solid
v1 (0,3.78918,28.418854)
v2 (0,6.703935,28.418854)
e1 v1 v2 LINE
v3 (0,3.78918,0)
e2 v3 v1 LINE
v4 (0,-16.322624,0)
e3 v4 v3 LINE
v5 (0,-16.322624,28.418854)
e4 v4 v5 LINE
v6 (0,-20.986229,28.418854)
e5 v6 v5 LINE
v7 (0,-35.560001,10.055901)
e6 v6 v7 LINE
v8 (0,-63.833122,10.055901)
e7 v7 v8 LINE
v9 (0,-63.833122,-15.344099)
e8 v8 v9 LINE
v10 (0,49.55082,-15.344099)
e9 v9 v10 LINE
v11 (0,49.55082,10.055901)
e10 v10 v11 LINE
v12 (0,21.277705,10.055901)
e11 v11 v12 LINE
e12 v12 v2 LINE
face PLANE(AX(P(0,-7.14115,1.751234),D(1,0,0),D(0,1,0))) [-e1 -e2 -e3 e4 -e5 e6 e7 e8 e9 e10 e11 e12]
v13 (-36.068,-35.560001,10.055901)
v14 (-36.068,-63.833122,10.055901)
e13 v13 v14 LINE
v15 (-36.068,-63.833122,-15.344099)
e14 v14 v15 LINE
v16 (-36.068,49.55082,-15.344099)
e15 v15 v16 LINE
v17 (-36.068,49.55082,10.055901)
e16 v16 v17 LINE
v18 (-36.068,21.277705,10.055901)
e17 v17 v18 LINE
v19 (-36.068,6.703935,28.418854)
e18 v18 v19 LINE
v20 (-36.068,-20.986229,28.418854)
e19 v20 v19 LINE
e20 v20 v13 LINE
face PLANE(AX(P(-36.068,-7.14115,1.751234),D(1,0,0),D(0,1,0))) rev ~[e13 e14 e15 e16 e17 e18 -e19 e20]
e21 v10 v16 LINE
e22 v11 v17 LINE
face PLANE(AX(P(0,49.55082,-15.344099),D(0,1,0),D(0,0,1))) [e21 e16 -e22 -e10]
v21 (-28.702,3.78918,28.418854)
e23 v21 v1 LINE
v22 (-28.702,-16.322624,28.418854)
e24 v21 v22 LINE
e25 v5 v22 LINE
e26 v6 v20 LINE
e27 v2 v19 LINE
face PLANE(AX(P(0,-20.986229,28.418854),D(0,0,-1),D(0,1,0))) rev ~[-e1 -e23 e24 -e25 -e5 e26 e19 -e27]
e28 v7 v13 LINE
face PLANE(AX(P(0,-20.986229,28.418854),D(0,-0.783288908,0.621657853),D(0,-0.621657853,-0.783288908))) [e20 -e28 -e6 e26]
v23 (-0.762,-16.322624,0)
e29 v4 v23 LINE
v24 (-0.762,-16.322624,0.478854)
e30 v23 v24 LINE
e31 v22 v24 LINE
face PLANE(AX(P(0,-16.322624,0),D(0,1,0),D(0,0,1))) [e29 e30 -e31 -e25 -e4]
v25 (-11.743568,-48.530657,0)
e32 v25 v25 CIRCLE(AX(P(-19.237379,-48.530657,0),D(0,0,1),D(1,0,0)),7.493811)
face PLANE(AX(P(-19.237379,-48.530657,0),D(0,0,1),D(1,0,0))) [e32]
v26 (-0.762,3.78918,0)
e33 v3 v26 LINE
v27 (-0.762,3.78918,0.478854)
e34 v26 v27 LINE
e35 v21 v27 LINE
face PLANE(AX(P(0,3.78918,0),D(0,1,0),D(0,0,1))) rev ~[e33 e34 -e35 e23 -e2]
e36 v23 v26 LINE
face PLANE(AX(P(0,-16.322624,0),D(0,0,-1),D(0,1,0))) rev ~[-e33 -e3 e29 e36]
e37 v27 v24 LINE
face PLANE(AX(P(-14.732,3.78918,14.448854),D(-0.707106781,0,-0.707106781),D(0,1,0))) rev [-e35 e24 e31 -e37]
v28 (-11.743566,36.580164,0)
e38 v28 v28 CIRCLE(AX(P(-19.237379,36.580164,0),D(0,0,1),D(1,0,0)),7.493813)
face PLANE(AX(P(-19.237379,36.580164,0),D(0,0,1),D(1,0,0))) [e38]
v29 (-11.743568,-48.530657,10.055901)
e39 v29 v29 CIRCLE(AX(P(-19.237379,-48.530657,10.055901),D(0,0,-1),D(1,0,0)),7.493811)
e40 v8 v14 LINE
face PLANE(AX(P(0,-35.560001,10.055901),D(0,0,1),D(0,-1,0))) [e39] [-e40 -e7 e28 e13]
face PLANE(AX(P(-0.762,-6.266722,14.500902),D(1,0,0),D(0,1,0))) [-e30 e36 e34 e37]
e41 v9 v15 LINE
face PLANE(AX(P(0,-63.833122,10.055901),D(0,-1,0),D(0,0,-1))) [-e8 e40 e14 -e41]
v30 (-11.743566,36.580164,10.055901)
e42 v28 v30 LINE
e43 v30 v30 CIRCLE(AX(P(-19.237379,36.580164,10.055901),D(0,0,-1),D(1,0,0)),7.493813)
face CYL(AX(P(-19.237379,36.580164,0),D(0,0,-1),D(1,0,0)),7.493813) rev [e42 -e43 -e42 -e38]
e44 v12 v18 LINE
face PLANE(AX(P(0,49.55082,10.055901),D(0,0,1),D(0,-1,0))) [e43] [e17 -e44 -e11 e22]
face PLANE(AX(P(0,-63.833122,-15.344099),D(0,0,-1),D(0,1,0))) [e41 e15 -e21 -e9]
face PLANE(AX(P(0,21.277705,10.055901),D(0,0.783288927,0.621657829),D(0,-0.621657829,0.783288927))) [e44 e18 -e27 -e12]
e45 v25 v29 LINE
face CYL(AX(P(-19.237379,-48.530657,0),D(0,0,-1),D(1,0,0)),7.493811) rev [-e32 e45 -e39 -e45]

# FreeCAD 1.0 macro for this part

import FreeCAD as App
import Part
import Sketcher
Q = App.Units.Quantity


def edges_at(feature, points):
    """Names of the edges that pass closest to the given points."""
    edges = feature.Shape.Edges
    near = lambda p: min(range(len(edges)), key=lambda i: edges[i].distToShape(Part.Vertex(*p))[0])
    return sorted({f"Edge{near(p) + 1}" for p in points})

doc = App.newDocument("Part")
body = doc.addObject("PartDesign::Body", "Body")

sketch1 = body.newObject("Sketcher::SketchObject", "Sketch")
sketch1.AttachmentSupport = (doc.getObject("YZ_Plane"), [""])
sketch1.MapMode = "FlatFace"
sketch1.addGeometry([
    Part.LineSegment(App.Vector(-36, 10, 0), App.Vector(-64, 10, 0)),
    Part.LineSegment(App.Vector(-64, 10, 0), App.Vector(-64, -15, 0)),
    Part.LineSegment(App.Vector(-64, -15, 0), App.Vector(50, -15, 0)),
    Part.LineSegment(App.Vector(50, -15, 0), App.Vector(50, 10, 0)),
    Part.LineSegment(App.Vector(50, 10, 0), App.Vector(21, 10, 0)),
    Part.LineSegment(App.Vector(21, 10, 0), App.Vector(7, 28, 0)),
    Part.LineSegment(App.Vector(7, 28, 0), App.Vector(-21, 28, 0)),
    Part.LineSegment(App.Vector(-21, 28, 0), App.Vector(-36, 10, 0)),
], False)
sketch1.addConstraint([
    Sketcher.Constraint("Coincident", 0, 2, 1, 1),
    Sketcher.Constraint("Coincident", 1, 2, 2, 1),
    Sketcher.Constraint("Coincident", 2, 2, 3, 1),
    Sketcher.Constraint("Coincident", 3, 2, 4, 1),
    Sketcher.Constraint("Coincident", 4, 2, 5, 1),
    Sketcher.Constraint("Coincident", 5, 2, 6, 1),
    Sketcher.Constraint("Coincident", 6, 2, 7, 1),
    Sketcher.Constraint("Coincident", 7, 2, 0, 1),
    Sketcher.Constraint("Horizontal", 0),
    Sketcher.Constraint("Vertical", 1),
    Sketcher.Constraint("Horizontal", 2),
    Sketcher.Constraint("Vertical", 3),
    Sketcher.Constraint("Horizontal", 4),
    Sketcher.Constraint("Horizontal", 6),
    Sketcher.Constraint("Horizontal", 0, 2, 3, 2),
    Sketcher.Constraint("Equal", 5, 7),
    Sketcher.Constraint("DistanceY", 1, 2, 1, 1, Q("1 in")),
    Sketcher.Constraint("DistanceX", 7, 2, -1, 1, Q("1.4 in")),
    Sketcher.Constraint("DistanceX", 0, 2, 0, 1, 28.273121),
    Sketcher.Constraint("DistanceX", 2, 1, 2, 2, 113.383942),
    Sketcher.Constraint("DistanceY", -1, 1, 0, 2, 10.055901),
    Sketcher.Constraint("DistanceX", 4, 2, 4, 1, 28.273115),
    Sketcher.Constraint("DistanceX", 6, 2, 6, 1, 27.690164),
    Sketcher.Constraint("Distance", 5, 23.443396),
])
pad1 = body.newObject("PartDesign::Pad", "Pad")
pad1.Profile = sketch1
pad1.Length = Q("1.42 in")
pad1.Reversed = True

sketch2 = body.newObject("Sketcher::SketchObject", "Sketch001")
sketch2.AttachmentSupport = (doc.getObject("XY_Plane"), [""])
sketch2.MapMode = "FlatFace"
sketch2.addGeometry([
    Part.Circle(App.Vector(-19, -49, 0), App.Vector(0, 0, 1), 7),
    Part.Circle(App.Vector(-19, 37, 0), App.Vector(0, 0, 1), 7),
], False)
sketch2.addConstraint([
    Sketcher.Constraint("Equal", 0, 1),
    Sketcher.Constraint("Vertical", 0, 3, 1, 3),
    Sketcher.Constraint("Diameter", 0, 14.987622),
    Sketcher.Constraint("DistanceX", 0, 3, -1, 1, 19.237379),
    Sketcher.Constraint("DistanceY", 0, 3, 1, 3, 85.110821),
    Sketcher.Constraint("DistanceY", 0, 3, -1, 1, 48.530657),
])
pocket1 = body.newObject("PartDesign::Pocket", "Pocket")
pocket1.Profile = sketch2
pocket1.Length = Q("2.26 in")
pocket1.Reversed = True

sketch3 = body.newObject("Sketcher::SketchObject", "Sketch002")
sketch3.AttachmentSupport = (doc.getObject("YZ_Plane"), [""])
sketch3.MapMode = "FlatFace"
sketch3.addGeometry([
    Part.LineSegment(App.Vector(-16, 29, 0), App.Vector(-16, 0, 0)),
    Part.LineSegment(App.Vector(-16, 0, 0), App.Vector(4, 0, 0)),
    Part.LineSegment(App.Vector(4, 0, 0), App.Vector(4, 29, 0)),
    Part.LineSegment(App.Vector(4, 29, 0), App.Vector(-16, 29, 0)),
], False)
sketch3.addConstraint([
    Sketcher.Constraint("Coincident", 0, 2, 1, 1),
    Sketcher.Constraint("Coincident", 1, 2, 2, 1),
    Sketcher.Constraint("Coincident", 2, 2, 3, 1),
    Sketcher.Constraint("Coincident", 3, 2, 0, 1),
    Sketcher.Constraint("Vertical", 0),
    Sketcher.Constraint("Horizontal", 1),
    Sketcher.Constraint("Vertical", 2),
    Sketcher.Constraint("Horizontal", 3),
    Sketcher.Constraint("PointOnObject", 0, 2, -1),
    Sketcher.Constraint("DistanceX", 1, 1, 1, 2, 20.111804),
    Sketcher.Constraint("DistanceY", 0, 2, 0, 1, 29.001804),
    Sketcher.Constraint("DistanceX", -1, 1, 1, 2, 3.78918),
])
pocket2 = body.newObject("PartDesign::Pocket", "Pocket001")
pocket2.Profile = sketch3
pocket2.Length = Q("0.03 in")
doc.recompute()

chamfer = body.newObject("PartDesign::Chamfer", "Chamfer")
chamfer.Base = (pocket2, edges_at(pocket2, [(-0.762, -6.267, 28.419)]))
chamfer.Size = Q("1.1 in")

doc.recompute()
